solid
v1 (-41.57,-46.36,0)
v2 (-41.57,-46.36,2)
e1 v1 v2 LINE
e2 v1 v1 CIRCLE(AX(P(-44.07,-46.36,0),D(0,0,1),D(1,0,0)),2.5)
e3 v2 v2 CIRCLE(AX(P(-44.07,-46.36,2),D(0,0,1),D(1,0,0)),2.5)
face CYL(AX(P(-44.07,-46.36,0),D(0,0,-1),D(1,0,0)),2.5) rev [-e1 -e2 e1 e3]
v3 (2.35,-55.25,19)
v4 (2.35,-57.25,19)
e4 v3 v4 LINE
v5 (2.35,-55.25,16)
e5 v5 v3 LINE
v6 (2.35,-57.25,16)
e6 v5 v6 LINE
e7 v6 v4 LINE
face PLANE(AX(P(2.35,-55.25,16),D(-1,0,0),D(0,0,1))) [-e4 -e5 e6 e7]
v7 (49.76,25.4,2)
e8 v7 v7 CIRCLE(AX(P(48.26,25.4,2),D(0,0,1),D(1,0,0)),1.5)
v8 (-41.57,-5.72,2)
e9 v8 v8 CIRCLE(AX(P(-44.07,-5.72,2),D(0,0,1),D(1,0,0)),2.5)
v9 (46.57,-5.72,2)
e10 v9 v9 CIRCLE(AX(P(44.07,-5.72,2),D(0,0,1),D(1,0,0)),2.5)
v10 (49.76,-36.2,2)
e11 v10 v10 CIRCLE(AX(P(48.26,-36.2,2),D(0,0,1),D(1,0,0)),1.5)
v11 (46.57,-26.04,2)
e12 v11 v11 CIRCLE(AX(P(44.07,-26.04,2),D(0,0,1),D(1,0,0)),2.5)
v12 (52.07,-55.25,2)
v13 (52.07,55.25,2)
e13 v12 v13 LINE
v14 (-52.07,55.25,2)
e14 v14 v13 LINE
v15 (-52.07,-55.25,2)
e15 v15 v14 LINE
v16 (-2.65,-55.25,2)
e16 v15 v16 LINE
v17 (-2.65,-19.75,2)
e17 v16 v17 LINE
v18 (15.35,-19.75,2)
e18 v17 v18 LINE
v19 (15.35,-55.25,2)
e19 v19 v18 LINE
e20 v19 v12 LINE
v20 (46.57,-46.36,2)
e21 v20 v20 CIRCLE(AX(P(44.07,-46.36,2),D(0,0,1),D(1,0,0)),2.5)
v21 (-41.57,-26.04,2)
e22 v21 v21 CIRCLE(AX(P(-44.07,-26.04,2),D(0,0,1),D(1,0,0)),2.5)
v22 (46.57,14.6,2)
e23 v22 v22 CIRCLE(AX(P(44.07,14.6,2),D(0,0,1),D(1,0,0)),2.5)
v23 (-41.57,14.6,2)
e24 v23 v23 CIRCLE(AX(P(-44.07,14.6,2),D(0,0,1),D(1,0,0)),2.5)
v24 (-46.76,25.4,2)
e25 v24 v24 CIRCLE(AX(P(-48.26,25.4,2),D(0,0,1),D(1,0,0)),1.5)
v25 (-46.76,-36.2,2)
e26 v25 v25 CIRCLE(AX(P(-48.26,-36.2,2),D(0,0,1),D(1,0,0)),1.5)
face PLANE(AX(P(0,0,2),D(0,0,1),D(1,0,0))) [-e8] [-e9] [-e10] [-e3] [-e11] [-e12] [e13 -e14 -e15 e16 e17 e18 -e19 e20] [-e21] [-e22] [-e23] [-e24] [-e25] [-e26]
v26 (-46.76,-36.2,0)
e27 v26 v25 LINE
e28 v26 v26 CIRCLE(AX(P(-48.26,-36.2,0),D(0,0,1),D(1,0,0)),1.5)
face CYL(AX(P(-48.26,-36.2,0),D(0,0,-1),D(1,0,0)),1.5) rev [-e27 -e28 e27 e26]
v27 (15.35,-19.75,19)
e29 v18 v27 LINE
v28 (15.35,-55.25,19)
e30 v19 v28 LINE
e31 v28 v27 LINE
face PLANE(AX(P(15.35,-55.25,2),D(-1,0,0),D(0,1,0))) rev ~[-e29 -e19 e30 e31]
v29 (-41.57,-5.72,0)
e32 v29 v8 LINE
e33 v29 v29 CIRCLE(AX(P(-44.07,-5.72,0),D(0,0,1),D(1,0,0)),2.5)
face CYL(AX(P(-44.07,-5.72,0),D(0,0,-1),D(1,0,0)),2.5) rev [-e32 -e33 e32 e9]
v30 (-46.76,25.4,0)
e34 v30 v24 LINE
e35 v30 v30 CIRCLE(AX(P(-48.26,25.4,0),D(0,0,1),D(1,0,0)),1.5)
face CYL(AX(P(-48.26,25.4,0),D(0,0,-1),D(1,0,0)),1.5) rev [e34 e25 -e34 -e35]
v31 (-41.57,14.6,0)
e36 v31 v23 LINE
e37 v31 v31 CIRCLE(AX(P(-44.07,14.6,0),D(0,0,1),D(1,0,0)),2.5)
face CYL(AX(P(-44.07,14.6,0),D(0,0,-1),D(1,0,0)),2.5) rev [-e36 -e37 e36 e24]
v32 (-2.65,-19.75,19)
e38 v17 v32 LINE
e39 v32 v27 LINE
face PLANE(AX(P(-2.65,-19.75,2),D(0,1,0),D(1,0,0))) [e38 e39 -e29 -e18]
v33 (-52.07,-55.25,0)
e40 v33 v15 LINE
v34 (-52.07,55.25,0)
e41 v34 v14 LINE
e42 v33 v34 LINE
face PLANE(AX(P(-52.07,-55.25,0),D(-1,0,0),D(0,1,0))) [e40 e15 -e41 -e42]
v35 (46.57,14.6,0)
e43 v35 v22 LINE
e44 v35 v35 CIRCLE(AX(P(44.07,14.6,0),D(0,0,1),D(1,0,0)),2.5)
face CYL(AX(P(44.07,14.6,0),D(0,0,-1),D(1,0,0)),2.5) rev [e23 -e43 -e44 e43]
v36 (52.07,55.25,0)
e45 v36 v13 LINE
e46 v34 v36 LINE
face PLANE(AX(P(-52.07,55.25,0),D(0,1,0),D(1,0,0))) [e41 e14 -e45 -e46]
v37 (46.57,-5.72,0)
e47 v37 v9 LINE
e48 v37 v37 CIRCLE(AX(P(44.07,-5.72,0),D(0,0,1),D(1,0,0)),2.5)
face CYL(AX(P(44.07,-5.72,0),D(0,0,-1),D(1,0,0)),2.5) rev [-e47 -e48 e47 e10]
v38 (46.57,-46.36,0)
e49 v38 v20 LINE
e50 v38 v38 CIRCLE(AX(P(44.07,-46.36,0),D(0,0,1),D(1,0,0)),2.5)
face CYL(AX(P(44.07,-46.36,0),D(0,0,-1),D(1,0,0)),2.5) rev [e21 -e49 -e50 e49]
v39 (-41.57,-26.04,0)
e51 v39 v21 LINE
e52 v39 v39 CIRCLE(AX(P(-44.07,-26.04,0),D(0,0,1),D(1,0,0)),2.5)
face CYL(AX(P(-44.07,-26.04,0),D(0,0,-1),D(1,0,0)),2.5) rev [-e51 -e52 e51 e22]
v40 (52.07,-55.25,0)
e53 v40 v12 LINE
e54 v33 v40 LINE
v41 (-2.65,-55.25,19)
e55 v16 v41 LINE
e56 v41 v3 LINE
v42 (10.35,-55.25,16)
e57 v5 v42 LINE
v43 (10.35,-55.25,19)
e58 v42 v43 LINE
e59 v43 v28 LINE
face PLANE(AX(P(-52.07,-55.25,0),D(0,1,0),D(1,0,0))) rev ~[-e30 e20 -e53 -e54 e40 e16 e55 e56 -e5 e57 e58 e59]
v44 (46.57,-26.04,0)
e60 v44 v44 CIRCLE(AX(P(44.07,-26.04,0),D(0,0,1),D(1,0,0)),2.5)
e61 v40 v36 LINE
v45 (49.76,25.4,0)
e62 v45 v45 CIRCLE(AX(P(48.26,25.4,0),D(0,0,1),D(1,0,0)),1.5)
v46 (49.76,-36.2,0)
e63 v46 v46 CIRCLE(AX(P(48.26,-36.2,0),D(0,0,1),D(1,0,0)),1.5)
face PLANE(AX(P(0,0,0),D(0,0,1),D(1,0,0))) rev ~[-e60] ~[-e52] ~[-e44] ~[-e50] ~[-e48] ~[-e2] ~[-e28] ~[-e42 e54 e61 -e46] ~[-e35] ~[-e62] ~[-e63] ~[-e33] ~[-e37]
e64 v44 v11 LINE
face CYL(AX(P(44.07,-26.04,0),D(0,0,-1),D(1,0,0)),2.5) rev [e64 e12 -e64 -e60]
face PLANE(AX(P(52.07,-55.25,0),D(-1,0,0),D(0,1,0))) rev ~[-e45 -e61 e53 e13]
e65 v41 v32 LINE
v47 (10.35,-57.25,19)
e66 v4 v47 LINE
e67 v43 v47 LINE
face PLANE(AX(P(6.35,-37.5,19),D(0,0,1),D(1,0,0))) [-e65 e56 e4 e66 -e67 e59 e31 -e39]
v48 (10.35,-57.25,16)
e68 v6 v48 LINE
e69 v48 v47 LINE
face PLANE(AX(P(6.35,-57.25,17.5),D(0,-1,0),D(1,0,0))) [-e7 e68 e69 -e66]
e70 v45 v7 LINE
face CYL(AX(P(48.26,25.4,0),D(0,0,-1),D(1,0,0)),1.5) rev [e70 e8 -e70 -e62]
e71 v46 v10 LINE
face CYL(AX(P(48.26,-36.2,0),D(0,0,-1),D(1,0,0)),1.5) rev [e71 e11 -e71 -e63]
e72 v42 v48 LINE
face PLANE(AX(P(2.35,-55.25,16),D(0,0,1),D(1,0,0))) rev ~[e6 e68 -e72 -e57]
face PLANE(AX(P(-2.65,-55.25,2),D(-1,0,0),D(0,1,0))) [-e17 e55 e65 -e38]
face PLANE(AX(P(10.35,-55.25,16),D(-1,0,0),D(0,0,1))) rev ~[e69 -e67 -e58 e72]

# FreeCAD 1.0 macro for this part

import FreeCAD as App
import Part
import Sketcher

doc = App.newDocument("Part")
body = doc.addObject("PartDesign::Body", "Body")

# Sketch on XY plane
sketch1 = doc.addObject("Sketcher::SketchObject", "Sketch")
body.addObject(sketch1)
sketch1.AttachmentSupport = (doc.XY_Plane, [""])
sketch1.MapMode = "FlatFace"
sketch1.addGeometry(Part.LineSegment(App.Vector(-52.1, 55.2, 0), App.Vector(-52.1, -55.2, 0)), False)
sketch1.addGeometry(Part.LineSegment(App.Vector(-52.1, -55.2, 0), App.Vector(52.1, -55.2, 0)), False)
sketch1.addGeometry(Part.LineSegment(App.Vector(52.1, -55.2, 0), App.Vector(52.1, 55.2, 0)), False)
sketch1.addGeometry(Part.LineSegment(App.Vector(52.1, 55.2, 0), App.Vector(-52.1, 55.2, 0)), False)
sketch1.addGeometry(Part.Circle(App.Vector(-44.1, -46.4, 0), App.Vector(0, 0, 1), 2.5), False)
sketch1.addGeometry(Part.Circle(App.Vector(-48.3, -36.2, 0), App.Vector(0, 0, 1), 1.5), False)
sketch1.addGeometry(Part.Circle(App.Vector(-44.1, -26, 0), App.Vector(0, 0, 1), 2.5), False)
sketch1.addGeometry(Part.Circle(App.Vector(44.1, -46.4, 0), App.Vector(0, 0, 1), 2.5), False)
sketch1.addGeometry(Part.Circle(App.Vector(48.3, -36.2, 0), App.Vector(0, 0, 1), 1.5), False)
sketch1.addGeometry(Part.Circle(App.Vector(44.1, -26, 0), App.Vector(0, 0, 1), 2.5), False)
sketch1.addGeometry(Part.Circle(App.Vector(-44.1, -5.7, 0), App.Vector(0, 0, 1), 2.5), False)
sketch1.addGeometry(Part.Circle(App.Vector(-44.1, 14.6, 0), App.Vector(0, 0, 1), 2.5), False)
sketch1.addGeometry(Part.Circle(App.Vector(-48.3, 25.4, 0), App.Vector(0, 0, 1), 1.5), False)
sketch1.addGeometry(Part.Circle(App.Vector(44.1, -5.7, 0), App.Vector(0, 0, 1), 2.5), False)
sketch1.addGeometry(Part.Circle(App.Vector(44.1, 14.6, 0), App.Vector(0, 0, 1), 2.5), False)
sketch1.addGeometry(Part.Circle(App.Vector(48.3, 25.4, 0), App.Vector(0, 0, 1), 1.5), False)
sketch1.addConstraint(Sketcher.Constraint("Coincident", 0, 2, 1, 1))
sketch1.addConstraint(Sketcher.Constraint("Coincident", 1, 2, 2, 1))
sketch1.addConstraint(Sketcher.Constraint("Coincident", 2, 2, 3, 1))
sketch1.addConstraint(Sketcher.Constraint("Coincident", 3, 2, 0, 1))
sketch1.addConstraint(Sketcher.Constraint("Vertical", 0))
sketch1.addConstraint(Sketcher.Constraint("Horizontal", 1))
sketch1.addConstraint(Sketcher.Constraint("Vertical", 2))
sketch1.addConstraint(Sketcher.Constraint("Horizontal", 3))
sketch1.addConstraint(Sketcher.Constraint("Equal", 4, 6))
sketch1.addConstraint(Sketcher.Constraint("Equal", 6, 7))
sketch1.addConstraint(Sketcher.Constraint("Equal", 5, 8))
sketch1.addConstraint(Sketcher.Constraint("Equal", 7, 9))
sketch1.addConstraint(Sketcher.Constraint("Equal", 9, 10))
sketch1.addConstraint(Sketcher.Constraint("Equal", 10, 11))
sketch1.addConstraint(Sketcher.Constraint("Equal", 8, 12))
sketch1.addConstraint(Sketcher.Constraint("Equal", 11, 13))
sketch1.addConstraint(Sketcher.Constraint("Equal", 13, 14))
sketch1.addConstraint(Sketcher.Constraint("Equal", 12, 15))
sketch1.addConstraint(Sketcher.Constraint("Symmetric", 0, 2, 2, 2, -1, 1))
sketch1.addConstraint(Sketcher.Constraint("Symmetric", 4, 3, 7, 3, -2))
sketch1.addConstraint(Sketcher.Constraint("Symmetric", 5, 3, 8, 3, -2))
sketch1.addConstraint(Sketcher.Constraint("Symmetric", 6, 3, 9, 3, -2))
sketch1.addConstraint(Sketcher.Constraint("Symmetric", 10, 3, 13, 3, -2))
sketch1.addConstraint(Sketcher.Constraint("Symmetric", 11, 3, 14, 3, -2))
sketch1.addConstraint(Sketcher.Constraint("Symmetric", 12, 3, 15, 3, -2))
sketch1.addConstraint(Sketcher.Constraint("Vertical", 4, 3, 6, 3))
sketch1.addConstraint(Sketcher.Constraint("Vertical", 6, 3, 10, 3))
sketch1.addConstraint(Sketcher.Constraint("Vertical", 10, 3, 11, 3))
sketch1.addConstraint(Sketcher.Constraint("Vertical", 5, 3, 12, 3))
sketch1.addConstraint(Sketcher.Constraint("Diameter", 4, 5.0))
sketch1.addConstraint(Sketcher.Constraint("Diameter", 5, 3.0))
sketch1.addConstraint(Sketcher.Constraint("DistanceY", 0, 2, 0, 1, 110.5))
sketch1.addConstraint(Sketcher.Constraint("DistanceX", 0, 2, 4, 3, 8.0))
sketch1.addConstraint(Sketcher.Constraint("DistanceX", 1, 1, 1, 2, 104.14))
sketch1.addConstraint(Sketcher.Constraint("DistanceY", 5, 3, -1, 1, 36.2))
sketch1.addConstraint(Sketcher.Constraint("DistanceY", -1, 1, 11, 3, 14.6))
sketch1.addConstraint(Sketcher.Constraint("DistanceY", -1, 1, 12, 3, 25.4))
sketch1.addConstraint(Sketcher.Constraint("DistanceY", 4, 3, -1, 1, 46.36))
sketch1.addConstraint(Sketcher.Constraint("DistanceX", 5, 3, -1, 1, 48.26))
sketch1.addConstraint(Sketcher.Constraint("DistanceY", 6, 3, -1, 1, 26.04))
sketch1.addConstraint(Sketcher.Constraint("DistanceY", 10, 3, -1, 1, 5.72))
pad1 = doc.addObject("PartDesign::Pad", "Pad")
body.addObject(pad1)
pad1.Profile = sketch1
pad1.Length = 2

# Sketch on XY plane
sketch2 = doc.addObject("Sketcher::SketchObject", "Sketch001")
body.addObject(sketch2)
sketch2.AttachmentSupport = (doc.XY_Plane, [""])
sketch2.MapMode = "FlatFace"
sketch2.AttachmentOffset = App.Placement(App.Vector(0, 0, 2), App.Rotation())
sketch2.addGeometry(Part.LineSegment(App.Vector(-3, -20, 0), App.Vector(-3, -55, 0)), False)
sketch2.addGeometry(Part.LineSegment(App.Vector(-3, -55, 0), App.Vector(15, -55, 0)), False)
sketch2.addGeometry(Part.LineSegment(App.Vector(15, -55, 0), App.Vector(15, -20, 0)), False)
sketch2.addGeometry(Part.LineSegment(App.Vector(15, -20, 0), App.Vector(-3, -20, 0)), False)
sketch2.addConstraint(Sketcher.Constraint("Coincident", 0, 2, 1, 1))
sketch2.addConstraint(Sketcher.Constraint("Coincident", 1, 2, 2, 1))
sketch2.addConstraint(Sketcher.Constraint("Coincident", 2, 2, 3, 1))
sketch2.addConstraint(Sketcher.Constraint("Coincident", 3, 2, 0, 1))
sketch2.addConstraint(Sketcher.Constraint("Vertical", 0))
sketch2.addConstraint(Sketcher.Constraint("Horizontal", 1))
sketch2.addConstraint(Sketcher.Constraint("Vertical", 2))
sketch2.addConstraint(Sketcher.Constraint("Horizontal", 3))
sketch2.addConstraint(Sketcher.Constraint("DistanceX", 1, 1, 1, 2, 18.0))
sketch2.addConstraint(Sketcher.Constraint("DistanceY", 0, 2, 0, 1, 35.5))
sketch2.addConstraint(Sketcher.Constraint("DistanceX", 0, 2, -1, 1, 2.65))
sketch2.addConstraint(Sketcher.Constraint("DistanceY", 0, 2, -1, 1, 55.25))
pad2 = doc.addObject("PartDesign::Pad", "Pad001")
body.addObject(pad2)
pad2.Profile = sketch2
pad2.Length = 17

# Sketch on XZ plane
sketch3 = doc.addObject("Sketcher::SketchObject", "Sketch002")
body.addObject(sketch3)
sketch3.AttachmentSupport = (doc.XZ_Plane, [""])
sketch3.MapMode = "FlatFace"
sketch3.AttachmentOffset = App.Placement(App.Vector(0, 0, 55.25), App.Rotation())
sketch3.addGeometry(Part.LineSegment(App.Vector(2.4, 19, 0), App.Vector(2.4, 16, 0)), False)
sketch3.addGeometry(Part.LineSegment(App.Vector(2.4, 16, 0), App.Vector(10.3, 16, 0)), False)
sketch3.addGeometry(Part.LineSegment(App.Vector(10.3, 16, 0), App.Vector(10.3, 19, 0)), False)
sketch3.addGeometry(Part.LineSegment(App.Vector(10.3, 19, 0), App.Vector(2.4, 19, 0)), False)
sketch3.addConstraint(Sketcher.Constraint("Coincident", 0, 2, 1, 1))
sketch3.addConstraint(Sketcher.Constraint("Coincident", 1, 2, 2, 1))
sketch3.addConstraint(Sketcher.Constraint("Coincident", 2, 2, 3, 1))
sketch3.addConstraint(Sketcher.Constraint("Coincident", 3, 2, 0, 1))
sketch3.addConstraint(Sketcher.Constraint("Vertical", 0))
sketch3.addConstraint(Sketcher.Constraint("Horizontal", 1))
sketch3.addConstraint(Sketcher.Constraint("Vertical", 2))
sketch3.addConstraint(Sketcher.Constraint("Horizontal", 3))
sketch3.addConstraint(Sketcher.Constraint("DistanceX", 1, 1, 1, 2, 8.0))
sketch3.addConstraint(Sketcher.Constraint("DistanceY", 0, 2, 0, 1, 3.0))
sketch3.addConstraint(Sketcher.Constraint("DistanceY", -1, 1, 0, 2, 16.0))
sketch3.addConstraint(Sketcher.Constraint("DistanceX", -1, 1, 0, 2, 2.35))
pad3 = doc.addObject("PartDesign::Pad", "Pad002")
body.addObject(pad3)
pad3.Profile = sketch3
pad3.Length = 2

doc.recompute()
